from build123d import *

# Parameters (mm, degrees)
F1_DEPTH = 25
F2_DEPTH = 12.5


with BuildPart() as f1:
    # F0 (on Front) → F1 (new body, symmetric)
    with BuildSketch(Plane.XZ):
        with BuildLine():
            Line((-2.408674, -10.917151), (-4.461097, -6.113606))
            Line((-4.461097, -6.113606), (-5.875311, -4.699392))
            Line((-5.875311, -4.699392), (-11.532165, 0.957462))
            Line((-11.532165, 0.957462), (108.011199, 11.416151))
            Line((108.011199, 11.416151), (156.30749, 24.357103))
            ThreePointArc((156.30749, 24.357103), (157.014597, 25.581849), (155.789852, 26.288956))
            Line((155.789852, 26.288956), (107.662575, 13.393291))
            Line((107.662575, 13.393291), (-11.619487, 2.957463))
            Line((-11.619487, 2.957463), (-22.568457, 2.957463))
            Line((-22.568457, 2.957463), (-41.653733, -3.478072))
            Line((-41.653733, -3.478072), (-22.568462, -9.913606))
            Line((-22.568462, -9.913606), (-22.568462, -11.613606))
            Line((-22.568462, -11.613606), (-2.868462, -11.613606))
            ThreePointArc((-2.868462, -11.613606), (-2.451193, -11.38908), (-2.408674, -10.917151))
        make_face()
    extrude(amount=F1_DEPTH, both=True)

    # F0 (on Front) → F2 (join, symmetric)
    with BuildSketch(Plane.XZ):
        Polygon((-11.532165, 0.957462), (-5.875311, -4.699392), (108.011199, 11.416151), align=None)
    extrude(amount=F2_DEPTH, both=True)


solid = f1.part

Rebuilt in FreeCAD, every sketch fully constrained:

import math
import FreeCAD as App
import Part
import Sketcher
Q = App.Units.Quantity


def add_polygon(sketch, points):
    """Adds a closed chain of lines whose ends are joined by coincident constraints."""
    first, n = sketch.GeometryCount, len(points)
    for a, b in zip(points, points[1:] + points[:1]):
        sketch.addGeometry(Part.LineSegment(App.Vector(*a, 0), App.Vector(*b, 0)), False)
    for i in range(n):
        sketch.addConstraint(Sketcher.Constraint("Coincident", first + i, 2, first + (i + 1) % n, 1))

doc = App.newDocument("Part")
body = doc.addObject("PartDesign::Body", "Body")

# Sketch on XZ plane
sketch1 = body.newObject("Sketcher::SketchObject", "Sketch")
sketch1.AttachmentSupport = (doc.getObject("XZ_Plane"), [""])
sketch1.MapMode = "FlatFace"
sketch1.addGeometry([
    Part.LineSegment(App.Vector(-2.4, -10.9, 0), App.Vector(-4.5, -6.1, 0)),  # 0
    Part.LineSegment(App.Vector(-4.5, -6.1, 0), App.Vector(-11.5, 1, 0)),  # 1
    Part.LineSegment(App.Vector(-11.5, 1, 0), App.Vector(108, 11.4, 0)),  # 2
    Part.LineSegment(App.Vector(108, 11.4, 0), App.Vector(156.3, 24.4, 0)),  # 3
    Part.ArcOfCircle(Part.Circle(App.Vector(156, 25.3, 0), App.Vector(0, 0, 1), 1), math.radians(-75), math.radians(105)),  # 4
    Part.LineSegment(App.Vector(155.8, 26.3, 0), App.Vector(107.7, 13.4, 0)),  # 5
    Part.LineSegment(App.Vector(107.7, 13.4, 0), App.Vector(-11.6, 3, 0)),  # 6
    Part.LineSegment(App.Vector(-11.6, 3, 0), App.Vector(-22.6, 3, 0)),  # 7
    Part.LineSegment(App.Vector(-22.6, 3, 0), App.Vector(-41.7, -3.5, 0)),  # 8
    Part.LineSegment(App.Vector(-41.7, -3.5, 0), App.Vector(-22.6, -9.9, 0)),  # 9
    Part.LineSegment(App.Vector(-22.6, -9.9, 0), App.Vector(-22.6, -11.6, 0)),  # 10
    Part.LineSegment(App.Vector(-22.6, -11.6, 0), App.Vector(-2.9, -11.6, 0)),  # 11
    Part.ArcOfCircle(Part.Circle(App.Vector(-2.9, -11.1, 0), App.Vector(0, 0, 1), 0.5), math.radians(-90), math.radians(23)),  # 12
], False)
sketch1.addConstraint([
    Sketcher.Constraint("Coincident", 0, 2, 1, 1),
    Sketcher.Constraint("Coincident", 1, 2, 2, 1),
    Sketcher.Constraint("Coincident", 2, 2, 3, 1),
    Sketcher.Constraint("Tangent", 3, 2, 4, 1),
    Sketcher.Constraint("Tangent", 4, 2, 5, 1),
    Sketcher.Constraint("Coincident", 5, 2, 6, 1),
    Sketcher.Constraint("Coincident", 6, 2, 7, 1),
    Sketcher.Constraint("Coincident", 7, 2, 8, 1),
    Sketcher.Constraint("Coincident", 8, 2, 9, 1),
    Sketcher.Constraint("Coincident", 9, 2, 10, 1),
    Sketcher.Constraint("Coincident", 10, 2, 11, 1),
    Sketcher.Constraint("Tangent", 11, 2, 12, 1),
    Sketcher.Constraint("Tangent", 12, 2, 0, 1),
    Sketcher.Constraint("Horizontal", 7),
    Sketcher.Constraint("Vertical", 10),
    Sketcher.Constraint("Horizontal", 11),
    Sketcher.Constraint("Parallel", 3, 5),
    Sketcher.Constraint("Parallel", 2, 6),
    Sketcher.Constraint("Radius", 4, 1.000001),
    Sketcher.Constraint("Radius", 12, 0.5),
    Sketcher.Constraint("Angle", 1, Q("135 deg")),
    Sketcher.Constraint("Angle", 2, Q("5 deg")),
    Sketcher.Constraint("Angle", 3, Q("15 deg")),
    Sketcher.Constraint("Distance", 1, 10.0),
    Sketcher.Constraint("Distance", 2, 120.0),
    Sketcher.Constraint("Distance", 3, 50.0),
    Sketcher.Constraint("DistanceX", 11, 1, 11, 2, 19.7),
    Sketcher.Constraint("DistanceY", 10, 2, 10, 1, 1.7),
    Sketcher.Constraint("DistanceY", 12, 3, 0, 2, 5.0),
    Sketcher.Constraint("DistanceY", 1, 2, 6, 2, 2.000001),
    Sketcher.Constraint("Distance", 6, 119.7377),
    Sketcher.Constraint("Distance", 8, 20.141099),
    Sketcher.Constraint("DistanceX", 7, 2, 7, 1, 10.94897),
    Sketcher.Constraint("DistanceX", -1, 1, 2, 2, 108.011199),
    Sketcher.Constraint("DistanceY", -1, 1, 4, 3, 25.323029),
    Sketcher.Constraint("DistanceY", 8, 2, -1, 1, 3.478072),
    Sketcher.Constraint("DistanceX", 9, 2, -1, 1, 22.568462),
])
pad1 = body.newObject("PartDesign::Pad", "Pad")
pad1.Profile = sketch1
pad1.Length = 50
pad1.Midplane = True

# Sketch on XZ plane
sketch2 = body.newObject("Sketcher::SketchObject", "Sketch001")
sketch2.AttachmentSupport = (doc.getObject("XZ_Plane"), [""])
sketch2.MapMode = "FlatFace"
add_polygon(sketch2, [(-12, 1), (-6, -5), (108, 11)])  # lines 0-2
sketch2.addConstraint([
    Sketcher.Constraint("Angle", 0, Q("-45 deg")),
    Sketcher.Constraint("Angle", 2, Q("-175 deg")),
    Sketcher.Constraint("Distance", 0, 8.0),
    Sketcher.Constraint("Distance", 2, 120.0),
    Sketcher.Constraint("DistanceX", -1, 1, 1, 2, 108.011199),
    Sketcher.Constraint("DistanceY", 0, 2, -1, 1, 4.699392),
])
pad2 = body.newObject("PartDesign::Pad", "Pad001")
pad2.Profile = sketch2
pad2.Length = 25
pad2.Midplane = True

doc.recompute()
